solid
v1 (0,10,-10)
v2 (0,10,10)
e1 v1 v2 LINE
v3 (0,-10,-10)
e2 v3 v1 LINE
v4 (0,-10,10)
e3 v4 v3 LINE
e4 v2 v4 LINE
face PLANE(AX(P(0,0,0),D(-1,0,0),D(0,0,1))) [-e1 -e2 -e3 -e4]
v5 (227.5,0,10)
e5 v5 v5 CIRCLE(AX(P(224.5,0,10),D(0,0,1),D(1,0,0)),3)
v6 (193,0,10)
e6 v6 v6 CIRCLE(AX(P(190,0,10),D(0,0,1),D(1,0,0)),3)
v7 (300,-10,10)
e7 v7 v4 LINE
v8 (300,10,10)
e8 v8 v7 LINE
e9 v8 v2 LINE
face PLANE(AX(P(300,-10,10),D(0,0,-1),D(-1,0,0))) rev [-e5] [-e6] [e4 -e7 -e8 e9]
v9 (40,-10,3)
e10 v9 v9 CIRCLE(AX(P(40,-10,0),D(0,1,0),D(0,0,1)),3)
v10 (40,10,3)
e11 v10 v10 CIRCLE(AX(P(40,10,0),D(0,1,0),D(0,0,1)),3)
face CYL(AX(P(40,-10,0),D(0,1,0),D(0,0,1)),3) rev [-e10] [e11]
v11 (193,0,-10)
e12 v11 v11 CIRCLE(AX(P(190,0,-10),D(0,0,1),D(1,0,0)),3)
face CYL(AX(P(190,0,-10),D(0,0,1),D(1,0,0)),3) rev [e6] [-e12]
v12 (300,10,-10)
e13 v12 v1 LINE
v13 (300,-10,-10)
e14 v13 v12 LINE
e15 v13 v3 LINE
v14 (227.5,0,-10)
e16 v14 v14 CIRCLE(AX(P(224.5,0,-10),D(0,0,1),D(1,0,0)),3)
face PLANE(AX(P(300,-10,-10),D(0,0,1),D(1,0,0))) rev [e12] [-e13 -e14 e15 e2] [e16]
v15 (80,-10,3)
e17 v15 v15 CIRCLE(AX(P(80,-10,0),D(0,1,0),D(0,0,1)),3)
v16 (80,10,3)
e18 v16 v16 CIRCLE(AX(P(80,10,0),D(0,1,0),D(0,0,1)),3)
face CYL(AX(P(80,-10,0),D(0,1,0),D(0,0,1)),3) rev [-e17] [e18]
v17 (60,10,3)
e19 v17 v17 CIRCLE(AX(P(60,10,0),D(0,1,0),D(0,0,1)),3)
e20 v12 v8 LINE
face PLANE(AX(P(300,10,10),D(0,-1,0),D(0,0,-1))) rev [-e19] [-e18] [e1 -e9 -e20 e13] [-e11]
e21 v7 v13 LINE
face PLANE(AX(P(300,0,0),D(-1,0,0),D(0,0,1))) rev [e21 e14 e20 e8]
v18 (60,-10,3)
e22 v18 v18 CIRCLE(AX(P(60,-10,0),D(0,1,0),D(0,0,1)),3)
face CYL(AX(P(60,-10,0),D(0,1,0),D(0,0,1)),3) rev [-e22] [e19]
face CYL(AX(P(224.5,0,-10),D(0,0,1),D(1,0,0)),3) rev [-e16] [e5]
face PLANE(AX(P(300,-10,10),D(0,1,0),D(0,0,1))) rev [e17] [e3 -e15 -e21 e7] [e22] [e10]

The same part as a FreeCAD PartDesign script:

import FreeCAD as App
import Part
import Sketcher
from FreeCAD import Vector
Q = App.Units.Quantity


def add_polygon(sketch, points):
    """Adds a closed chain of lines whose ends are joined by coincident constraints."""
    first, n = sketch.GeometryCount, len(points)
    for a, b in zip(points, points[1:] + points[:1]):
        sketch.addGeometry(Part.LineSegment(App.Vector(*a, 0), App.Vector(*b, 0)), False)
    for i in range(n):
        sketch.addConstraint(Sketcher.Constraint("Coincident", first + i, 2, first + (i + 1) % n, 1))

doc = App.newDocument("Part")
body = doc.addObject("PartDesign::Body", "Body")

# Sketch on YZ plane
sketch1 = body.newObject("Sketcher::SketchObject", "Sketch")
sketch1.AttachmentSupport = (doc.getObject("YZ_Plane"), [""])
sketch1.MapMode = "FlatFace"
add_polygon(sketch1, [(10, 10), (-10, 10), (-10, -10), (10, -10)])  # lines 0-3
sketch1.addConstraint(Sketcher.Constraint("Horizontal", 0))
sketch1.addConstraint(Sketcher.Constraint("Vertical", 1))
sketch1.addConstraint(Sketcher.Constraint("Horizontal", 2))
sketch1.addConstraint(Sketcher.Constraint("Vertical", 3))
sketch1.addConstraint(Sketcher.Constraint("Symmetric", 0, 2, 2, 2, -1, 1))
sketch1.addConstraint(Sketcher.Constraint("Equal", 2, 1))
sketch1.addConstraint(Sketcher.Constraint("DistanceX", 0, 2, 0, 1, Q("20 mm")))
pad1 = body.newObject("PartDesign::Pad", "Pad")
pad1.Profile = sketch1
pad1.Length = 300

# Sketch on XZ plane
sketch2 = body.newObject("Sketcher::SketchObject", "Sketch001")
sketch2.AttachmentSupport = (doc.getObject("XZ_Plane"), [""])
sketch2.MapMode = "FlatFace"
sketch2.AttachmentOffset = App.Placement(Vector(0, 0, -10), App.Rotation())
sketch2.addGeometry(Part.Circle(Vector(40, 0, 0), Vector(0, 0, 1), 3), False)
sketch2.addGeometry(Part.Circle(Vector(60, 0, 0), Vector(0, 0, 1), 3), False)
sketch2.addGeometry(Part.Circle(Vector(80, 0, 0), Vector(0, 0, 1), 3), False)
sketch2.addConstraint(Sketcher.Constraint("Equal", 0, 1))
sketch2.addConstraint(Sketcher.Constraint("Equal", 1, 2))
sketch2.addConstraint(Sketcher.Constraint("PointOnObject", 0, 3, -1))
sketch2.addConstraint(Sketcher.Constraint("PointOnObject", 1, 3, -1))
sketch2.addConstraint(Sketcher.Constraint("PointOnObject", 2, 3, -1))
sketch2.addConstraint(Sketcher.Constraint("Diameter", 0, Q("6 mm")))
sketch2.addConstraint(Sketcher.Constraint("DistanceX", -1, 1, 0, 3, Q("40 mm")))
sketch2.addConstraint(Sketcher.Constraint("DistanceX", -1, 1, 1, 3, Q("60 mm")))
sketch2.addConstraint(Sketcher.Constraint("DistanceX", -1, 1, 2, 3, Q("80 mm")))
pocket1 = body.newObject("PartDesign::Pocket", "Pocket")
pocket1.Profile = sketch2
pocket1.Type = "ThroughAll"
pocket1.Reversed = True

# Sketch on XY plane
sketch3 = body.newObject("Sketcher::SketchObject", "Sketch002")
sketch3.AttachmentSupport = (doc.getObject("XY_Plane"), [""])
sketch3.MapMode = "FlatFace"
sketch3.AttachmentOffset = App.Placement(Vector(0, 0, 10), App.Rotation())
sketch3.addGeometry(Part.Circle(Vector(190, 0, 0), Vector(0, 0, 1), 3), False)
sketch3.addGeometry(Part.Circle(Vector(224.5, 0, 0), Vector(0, 0, 1), 3), False)
sketch3.addConstraint(Sketcher.Constraint("Equal", 0, 1))
sketch3.addConstraint(Sketcher.Constraint("PointOnObject", 0, 3, -1))
sketch3.addConstraint(Sketcher.Constraint("PointOnObject", 1, 3, -1))
sketch3.addConstraint(Sketcher.Constraint("Diameter", 0, Q("6 mm")))
sketch3.addConstraint(Sketcher.Constraint("DistanceX", -1, 1, 0, 3, Q("190 mm")))
sketch3.addConstraint(Sketcher.Constraint("DistanceX", -1, 1, 1, 3, Q("224.5 mm")))
pocket2 = body.newObject("PartDesign::Pocket", "Pocket001")
pocket2.Profile = sketch3
pocket2.Type = "ThroughAll"

doc.recompute()
